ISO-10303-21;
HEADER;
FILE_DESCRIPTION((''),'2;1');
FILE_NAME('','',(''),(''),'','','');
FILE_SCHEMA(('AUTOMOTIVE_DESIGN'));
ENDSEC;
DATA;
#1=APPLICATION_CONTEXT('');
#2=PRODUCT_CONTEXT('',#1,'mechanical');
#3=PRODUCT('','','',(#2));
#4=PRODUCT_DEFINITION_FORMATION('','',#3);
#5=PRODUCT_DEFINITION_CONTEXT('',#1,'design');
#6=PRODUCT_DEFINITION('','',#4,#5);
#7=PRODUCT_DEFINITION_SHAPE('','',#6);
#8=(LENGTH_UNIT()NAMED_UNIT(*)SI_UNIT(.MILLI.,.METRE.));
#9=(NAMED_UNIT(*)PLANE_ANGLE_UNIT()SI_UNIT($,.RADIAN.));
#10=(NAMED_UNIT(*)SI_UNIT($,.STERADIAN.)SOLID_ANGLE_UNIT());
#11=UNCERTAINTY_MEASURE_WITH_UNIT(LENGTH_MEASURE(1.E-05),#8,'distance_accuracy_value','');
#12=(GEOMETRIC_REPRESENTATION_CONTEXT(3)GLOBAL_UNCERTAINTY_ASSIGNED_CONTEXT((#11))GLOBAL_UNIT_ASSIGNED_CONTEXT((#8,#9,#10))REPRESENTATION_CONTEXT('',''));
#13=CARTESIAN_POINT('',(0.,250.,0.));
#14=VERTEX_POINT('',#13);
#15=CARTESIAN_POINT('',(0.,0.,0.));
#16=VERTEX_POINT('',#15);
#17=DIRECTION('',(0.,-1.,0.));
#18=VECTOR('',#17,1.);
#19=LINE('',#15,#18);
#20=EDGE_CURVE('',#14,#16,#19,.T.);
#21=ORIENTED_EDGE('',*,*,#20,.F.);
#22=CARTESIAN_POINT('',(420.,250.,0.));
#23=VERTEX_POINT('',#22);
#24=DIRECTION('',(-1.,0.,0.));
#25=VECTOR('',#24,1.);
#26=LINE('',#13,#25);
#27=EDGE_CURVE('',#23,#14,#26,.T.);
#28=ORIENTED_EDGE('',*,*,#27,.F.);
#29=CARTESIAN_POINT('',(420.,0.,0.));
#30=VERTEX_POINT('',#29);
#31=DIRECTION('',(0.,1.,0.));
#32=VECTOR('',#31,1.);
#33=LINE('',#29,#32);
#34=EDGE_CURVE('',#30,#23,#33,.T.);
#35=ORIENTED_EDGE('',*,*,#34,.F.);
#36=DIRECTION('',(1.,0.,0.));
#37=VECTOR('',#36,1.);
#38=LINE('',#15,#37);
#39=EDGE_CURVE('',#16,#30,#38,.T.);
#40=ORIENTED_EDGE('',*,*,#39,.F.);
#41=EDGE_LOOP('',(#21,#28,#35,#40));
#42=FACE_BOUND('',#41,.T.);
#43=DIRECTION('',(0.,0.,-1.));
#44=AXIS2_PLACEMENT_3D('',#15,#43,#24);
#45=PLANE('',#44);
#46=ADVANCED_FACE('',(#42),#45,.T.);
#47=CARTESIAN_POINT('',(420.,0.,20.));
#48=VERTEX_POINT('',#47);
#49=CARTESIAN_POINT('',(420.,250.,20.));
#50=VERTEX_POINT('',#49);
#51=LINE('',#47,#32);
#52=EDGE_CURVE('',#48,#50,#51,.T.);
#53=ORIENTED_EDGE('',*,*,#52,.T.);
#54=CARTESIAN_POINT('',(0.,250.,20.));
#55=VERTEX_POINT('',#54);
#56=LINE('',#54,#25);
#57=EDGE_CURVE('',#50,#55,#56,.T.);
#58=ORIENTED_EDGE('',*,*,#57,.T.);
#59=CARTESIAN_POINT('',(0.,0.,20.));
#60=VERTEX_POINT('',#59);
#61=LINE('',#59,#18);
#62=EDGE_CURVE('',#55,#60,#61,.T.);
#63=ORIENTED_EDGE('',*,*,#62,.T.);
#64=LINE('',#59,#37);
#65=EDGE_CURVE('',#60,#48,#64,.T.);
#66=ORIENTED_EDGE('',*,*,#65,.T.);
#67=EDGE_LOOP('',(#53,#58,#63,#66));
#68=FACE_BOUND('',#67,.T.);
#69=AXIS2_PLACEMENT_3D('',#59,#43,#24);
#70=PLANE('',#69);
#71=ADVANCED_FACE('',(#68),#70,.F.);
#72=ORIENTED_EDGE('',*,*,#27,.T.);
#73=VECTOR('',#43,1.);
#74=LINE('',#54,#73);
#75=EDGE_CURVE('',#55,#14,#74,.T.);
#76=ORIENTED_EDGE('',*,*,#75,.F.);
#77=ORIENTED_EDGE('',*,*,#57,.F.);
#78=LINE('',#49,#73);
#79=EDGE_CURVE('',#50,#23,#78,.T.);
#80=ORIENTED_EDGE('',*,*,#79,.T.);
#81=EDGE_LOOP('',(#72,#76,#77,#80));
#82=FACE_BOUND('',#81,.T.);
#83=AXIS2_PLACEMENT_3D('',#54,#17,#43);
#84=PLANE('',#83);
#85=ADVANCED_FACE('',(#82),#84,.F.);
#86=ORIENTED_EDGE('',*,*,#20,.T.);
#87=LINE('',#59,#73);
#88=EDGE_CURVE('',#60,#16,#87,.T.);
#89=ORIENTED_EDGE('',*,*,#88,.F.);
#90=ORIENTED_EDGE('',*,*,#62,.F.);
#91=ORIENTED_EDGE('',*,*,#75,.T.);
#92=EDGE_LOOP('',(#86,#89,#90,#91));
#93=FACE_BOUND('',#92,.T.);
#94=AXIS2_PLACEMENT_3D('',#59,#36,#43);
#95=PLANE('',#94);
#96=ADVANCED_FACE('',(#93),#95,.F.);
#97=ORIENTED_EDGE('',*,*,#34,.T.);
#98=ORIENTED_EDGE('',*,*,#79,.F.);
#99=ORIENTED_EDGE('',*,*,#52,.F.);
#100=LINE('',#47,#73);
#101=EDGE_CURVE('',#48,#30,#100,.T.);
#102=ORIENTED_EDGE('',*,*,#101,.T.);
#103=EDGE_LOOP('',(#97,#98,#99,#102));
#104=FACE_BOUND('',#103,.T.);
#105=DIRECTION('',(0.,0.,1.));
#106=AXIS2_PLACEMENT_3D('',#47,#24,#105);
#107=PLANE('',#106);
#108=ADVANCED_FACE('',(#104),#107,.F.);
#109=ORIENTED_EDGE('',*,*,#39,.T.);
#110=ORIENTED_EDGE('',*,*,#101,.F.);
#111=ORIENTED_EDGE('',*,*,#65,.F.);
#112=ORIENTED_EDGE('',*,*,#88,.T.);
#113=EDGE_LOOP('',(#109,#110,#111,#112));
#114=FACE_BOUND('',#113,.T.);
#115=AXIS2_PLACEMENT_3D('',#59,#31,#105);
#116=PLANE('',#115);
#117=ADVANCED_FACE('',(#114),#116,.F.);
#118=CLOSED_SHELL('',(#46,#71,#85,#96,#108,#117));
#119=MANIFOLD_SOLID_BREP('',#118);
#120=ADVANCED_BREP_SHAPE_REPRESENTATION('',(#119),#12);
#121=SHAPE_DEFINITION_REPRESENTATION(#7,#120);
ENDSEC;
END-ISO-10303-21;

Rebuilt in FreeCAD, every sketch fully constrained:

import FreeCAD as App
import Part
import Sketcher

doc = App.newDocument("Part")
body = doc.addObject("PartDesign::Body", "Body")

sketch1 = body.newObject("Sketcher::SketchObject", "Sketch")
sketch1.AttachmentSupport = (doc.getObject("XY_Plane"), [""])
sketch1.MapMode = "FlatFace"
sketch1.addGeometry([
    Part.LineSegment(App.Vector(0, 250, 0), App.Vector(0, 0, 0)),
    Part.LineSegment(App.Vector(0, 0, 0), App.Vector(420, 0, 0)),
    Part.LineSegment(App.Vector(420, 0, 0), App.Vector(420, 250, 0)),
    Part.LineSegment(App.Vector(420, 250, 0), App.Vector(0, 250, 0)),
], False)
sketch1.addConstraint([
    Sketcher.Constraint("Coincident", 0, 2, 1, 1),
    Sketcher.Constraint("Coincident", 1, 2, 2, 1),
    Sketcher.Constraint("Coincident", 2, 2, 3, 1),
    Sketcher.Constraint("Coincident", 3, 2, 0, 1),
    Sketcher.Constraint("Vertical", 0),
    Sketcher.Constraint("Horizontal", 1),
    Sketcher.Constraint("Vertical", 2),
    Sketcher.Constraint("Horizontal", 3),
    Sketcher.Constraint("Coincident", 0, 2, -1, 1),
    Sketcher.Constraint("DistanceX", 1, 1, 1, 2, 420.0),
    Sketcher.Constraint("DistanceY", 0, 2, 0, 1, 250.0),
])
pad1 = body.newObject("PartDesign::Pad", "Pad")
pad1.Profile = sketch1
pad1.Length = 20

doc.recompute()
